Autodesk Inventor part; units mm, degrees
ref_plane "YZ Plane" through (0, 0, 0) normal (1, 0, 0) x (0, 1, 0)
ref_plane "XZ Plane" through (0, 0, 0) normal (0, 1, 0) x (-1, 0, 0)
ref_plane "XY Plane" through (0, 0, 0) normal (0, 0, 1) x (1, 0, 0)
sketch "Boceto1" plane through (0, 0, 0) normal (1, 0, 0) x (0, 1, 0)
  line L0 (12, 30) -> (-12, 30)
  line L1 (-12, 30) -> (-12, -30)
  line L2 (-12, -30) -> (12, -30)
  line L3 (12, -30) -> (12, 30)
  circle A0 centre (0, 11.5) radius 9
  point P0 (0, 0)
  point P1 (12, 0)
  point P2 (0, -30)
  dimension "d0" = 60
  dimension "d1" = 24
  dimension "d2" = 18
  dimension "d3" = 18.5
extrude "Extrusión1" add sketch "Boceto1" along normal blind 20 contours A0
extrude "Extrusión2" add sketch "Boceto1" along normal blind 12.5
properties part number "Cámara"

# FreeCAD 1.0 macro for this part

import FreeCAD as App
import Part
import Sketcher

V = App.Vector
Q = App.Units.Quantity

doc = App.newDocument("Part")
body = doc.addObject("PartDesign::Body", "Body")

sketch1 = body.newObject("Sketcher::SketchObject", "Sketch")
sketch1.AttachmentSupport = (doc.getObject("YZ_Plane"), [""])
sketch1.MapMode = "FlatFace"
sketch1.addGeometry(Part.Circle(V(0, 12, 0), V(0, 0, 1), 9), False)
sketch1.addConstraint([
    Sketcher.Constraint("PointOnObject", 0, 3, -2),
    Sketcher.Constraint("Diameter", 0, Q("18 mm")),
    Sketcher.Constraint("DistanceY", -1, 1, 0, 3, Q("11.5 mm")),
])
pad1 = body.newObject("PartDesign::Pad", "Pad")
pad1.Profile = sketch1
pad1.Length = 20

sketch2 = body.newObject("Sketcher::SketchObject", "Sketch001")
sketch2.AttachmentSupport = (doc.getObject("YZ_Plane"), [""])
sketch2.MapMode = "FlatFace"
sketch2.addGeometry([
    Part.LineSegment(V(12, -30, 0), V(12, 30, 0)),
    Part.LineSegment(V(12, 30, 0), V(-12, 30, 0)),
    Part.LineSegment(V(-12, 30, 0), V(-12, -30, 0)),
    Part.LineSegment(V(-12, -30, 0), V(12, -30, 0)),
    Part.Circle(V(0, 12, 0), V(0, 0, 1), 9),
], False)
sketch2.addConstraint([
    Sketcher.Constraint("Coincident", 0, 2, 1, 1),
    Sketcher.Constraint("Coincident", 1, 2, 2, 1),
    Sketcher.Constraint("Coincident", 2, 2, 3, 1),
    Sketcher.Constraint("Coincident", 3, 2, 0, 1),
    Sketcher.Constraint("Vertical", 0),
    Sketcher.Constraint("Horizontal", 1),
    Sketcher.Constraint("Vertical", 2),
    Sketcher.Constraint("Horizontal", 3),
    Sketcher.Constraint("Symmetric", 0, 2, 2, 2, -1, 1),
    Sketcher.Constraint("PointOnObject", 4, 3, -2),
    Sketcher.Constraint("Diameter", 4, Q("18 mm")),
    Sketcher.Constraint("DistanceX", 1, 2, 1, 1, Q("24 mm")),
    Sketcher.Constraint("DistanceY", 0, 1, 0, 2, Q("60 mm")),
    Sketcher.Constraint("DistanceY", 4, 3, 0, 2, Q("18.5 mm")),
])
pad2 = body.newObject("PartDesign::Pad", "Pad001")
pad2.Profile = sketch2
pad2.Length = 12.5

doc.recompute()
